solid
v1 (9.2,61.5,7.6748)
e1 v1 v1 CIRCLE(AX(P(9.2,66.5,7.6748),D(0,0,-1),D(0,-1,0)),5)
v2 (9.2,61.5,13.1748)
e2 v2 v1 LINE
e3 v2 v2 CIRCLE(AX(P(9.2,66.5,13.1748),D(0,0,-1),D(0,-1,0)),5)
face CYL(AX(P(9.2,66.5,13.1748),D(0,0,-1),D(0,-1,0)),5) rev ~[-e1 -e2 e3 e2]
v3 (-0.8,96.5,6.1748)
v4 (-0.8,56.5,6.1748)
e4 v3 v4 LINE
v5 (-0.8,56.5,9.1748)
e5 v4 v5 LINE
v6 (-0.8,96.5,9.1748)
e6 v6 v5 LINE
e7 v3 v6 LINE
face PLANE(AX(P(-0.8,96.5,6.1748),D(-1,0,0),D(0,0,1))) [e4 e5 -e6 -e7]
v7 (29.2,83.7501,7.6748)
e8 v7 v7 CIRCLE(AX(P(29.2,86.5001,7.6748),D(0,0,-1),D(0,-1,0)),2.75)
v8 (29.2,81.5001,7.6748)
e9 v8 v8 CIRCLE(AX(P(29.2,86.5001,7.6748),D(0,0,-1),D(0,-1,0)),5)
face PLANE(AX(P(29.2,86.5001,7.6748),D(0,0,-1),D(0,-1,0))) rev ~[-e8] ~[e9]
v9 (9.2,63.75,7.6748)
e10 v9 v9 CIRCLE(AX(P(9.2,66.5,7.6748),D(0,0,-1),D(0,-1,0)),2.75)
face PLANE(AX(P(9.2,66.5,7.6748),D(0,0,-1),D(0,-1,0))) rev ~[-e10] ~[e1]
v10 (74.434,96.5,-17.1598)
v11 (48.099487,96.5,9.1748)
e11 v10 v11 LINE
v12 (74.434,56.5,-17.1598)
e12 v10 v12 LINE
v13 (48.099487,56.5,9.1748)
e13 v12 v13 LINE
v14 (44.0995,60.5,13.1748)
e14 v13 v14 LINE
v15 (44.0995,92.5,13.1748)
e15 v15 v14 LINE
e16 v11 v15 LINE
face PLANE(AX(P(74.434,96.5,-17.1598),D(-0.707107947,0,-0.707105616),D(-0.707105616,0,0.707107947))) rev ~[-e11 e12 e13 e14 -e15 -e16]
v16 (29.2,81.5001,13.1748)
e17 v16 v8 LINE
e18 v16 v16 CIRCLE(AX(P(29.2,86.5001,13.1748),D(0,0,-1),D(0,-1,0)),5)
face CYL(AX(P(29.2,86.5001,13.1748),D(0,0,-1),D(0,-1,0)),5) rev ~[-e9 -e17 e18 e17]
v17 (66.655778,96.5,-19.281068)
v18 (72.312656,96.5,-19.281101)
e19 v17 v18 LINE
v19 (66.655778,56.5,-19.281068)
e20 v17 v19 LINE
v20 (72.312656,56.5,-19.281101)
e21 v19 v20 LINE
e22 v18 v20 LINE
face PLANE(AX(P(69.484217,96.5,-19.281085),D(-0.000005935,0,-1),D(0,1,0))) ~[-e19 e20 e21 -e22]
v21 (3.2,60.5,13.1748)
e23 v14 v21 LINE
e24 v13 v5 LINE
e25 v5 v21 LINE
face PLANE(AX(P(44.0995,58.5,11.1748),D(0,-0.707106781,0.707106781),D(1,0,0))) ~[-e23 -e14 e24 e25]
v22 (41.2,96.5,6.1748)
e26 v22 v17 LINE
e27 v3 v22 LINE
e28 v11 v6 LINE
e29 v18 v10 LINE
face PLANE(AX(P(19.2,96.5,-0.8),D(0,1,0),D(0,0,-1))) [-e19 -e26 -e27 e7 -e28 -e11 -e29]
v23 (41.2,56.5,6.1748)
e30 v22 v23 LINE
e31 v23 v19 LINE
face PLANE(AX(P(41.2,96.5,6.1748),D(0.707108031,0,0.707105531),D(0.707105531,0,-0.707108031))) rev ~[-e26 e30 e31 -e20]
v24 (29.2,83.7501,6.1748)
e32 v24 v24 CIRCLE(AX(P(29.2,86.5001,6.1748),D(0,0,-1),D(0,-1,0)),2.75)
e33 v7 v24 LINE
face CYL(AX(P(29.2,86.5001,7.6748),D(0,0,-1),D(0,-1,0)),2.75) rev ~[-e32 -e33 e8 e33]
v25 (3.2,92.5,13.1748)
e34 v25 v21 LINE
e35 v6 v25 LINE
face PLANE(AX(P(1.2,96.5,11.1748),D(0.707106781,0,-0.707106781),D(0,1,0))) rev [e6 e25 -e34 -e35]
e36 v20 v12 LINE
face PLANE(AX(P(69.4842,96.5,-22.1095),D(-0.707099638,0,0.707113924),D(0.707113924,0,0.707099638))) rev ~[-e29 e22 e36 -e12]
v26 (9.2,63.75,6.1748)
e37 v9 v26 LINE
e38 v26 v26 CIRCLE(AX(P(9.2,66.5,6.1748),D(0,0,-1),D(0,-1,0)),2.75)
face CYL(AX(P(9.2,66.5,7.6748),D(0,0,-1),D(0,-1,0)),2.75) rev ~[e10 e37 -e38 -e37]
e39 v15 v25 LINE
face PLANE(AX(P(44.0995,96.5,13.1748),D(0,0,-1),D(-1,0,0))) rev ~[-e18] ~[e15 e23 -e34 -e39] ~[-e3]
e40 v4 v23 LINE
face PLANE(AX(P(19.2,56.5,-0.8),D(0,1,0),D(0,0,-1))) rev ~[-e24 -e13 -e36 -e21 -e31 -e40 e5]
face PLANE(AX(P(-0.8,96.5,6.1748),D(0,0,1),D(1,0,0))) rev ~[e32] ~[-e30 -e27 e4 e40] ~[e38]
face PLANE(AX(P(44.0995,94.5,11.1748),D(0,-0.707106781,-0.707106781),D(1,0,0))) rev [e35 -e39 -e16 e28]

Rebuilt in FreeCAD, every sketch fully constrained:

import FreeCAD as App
import Part
import Sketcher

V = App.Vector
Q = App.Units.Quantity


def edges_at(feature, points):
    """Names of the edges that pass closest to the given points."""
    edges = feature.Shape.Edges
    near = lambda p: min(range(len(edges)), key=lambda i: edges[i].distToShape(Part.Vertex(*p))[0])
    return sorted({f"Edge{near(p) + 1}" for p in points})

doc = App.newDocument("Part")
body = doc.addObject("PartDesign::Body", "Body")

# Sketch on XZ plane
sketch1 = body.newObject("Sketcher::SketchObject", "Sketch")
sketch1.AttachmentSupport = (doc.getObject("XZ_Plane"), [""])
sketch1.MapMode = "FlatFace"
sketch1.AttachmentOffset = App.Placement(V(0, 0, -96.5), App.Rotation())
sketch1.addGeometry(Part.LineSegment(V(41, 6, 0), V(-1, 6, 0)), False)
sketch1.addGeometry(Part.LineSegment(V(-1, 6, 0), V(-1, 13, 0)), False)
sketch1.addGeometry(Part.LineSegment(V(-1, 13, 0), V(44, 13, 0)), False)
sketch1.addGeometry(Part.LineSegment(V(44, 13, 0), V(74, -17, 0)), False)
sketch1.addGeometry(Part.LineSegment(V(74, -17, 0), V(69, -22, 0)), False)
sketch1.addGeometry(Part.LineSegment(V(69, -22, 0), V(41, 6, 0)), False)
sketch1.addConstraint(Sketcher.Constraint("Coincident", 0, 2, 1, 1))
sketch1.addConstraint(Sketcher.Constraint("Coincident", 1, 2, 2, 1))
sketch1.addConstraint(Sketcher.Constraint("Coincident", 2, 2, 3, 1))
sketch1.addConstraint(Sketcher.Constraint("Coincident", 3, 2, 4, 1))
sketch1.addConstraint(Sketcher.Constraint("Coincident", 4, 2, 5, 1))
sketch1.addConstraint(Sketcher.Constraint("Coincident", 5, 2, 0, 1))
sketch1.addConstraint(Sketcher.Constraint("Horizontal", 0))
sketch1.addConstraint(Sketcher.Constraint("Vertical", 1))
sketch1.addConstraint(Sketcher.Constraint("Horizontal", 2))
sketch1.addConstraint(Sketcher.Constraint("Perpendicular", 3, 4))
sketch1.addConstraint(Sketcher.Constraint("Perpendicular", 4, 5))
sketch1.addConstraint(Sketcher.Constraint("DistanceX", 0, 2, 0, 1, 42.0))
sketch1.addConstraint(Sketcher.Constraint("DistanceY", 1, 1, 1, 2, 7.0))
sketch1.addConstraint(Sketcher.Constraint("Angle", 4, Q("-135.0006 deg")))
sketch1.addConstraint(Sketcher.Constraint("Distance", 4, 7.0))
sketch1.addConstraint(Sketcher.Constraint("Distance", 5, 40.0))
sketch1.addConstraint(Sketcher.Constraint("DistanceX", 0, 2, -1, 1, 0.8))
sketch1.addConstraint(Sketcher.Constraint("DistanceY", -1, 1, 0, 2, 6.1748))
pad1 = body.newObject("PartDesign::Pad", "Pad")
pad1.Profile = sketch1
pad1.Length = 40
doc.recompute()

chamfer = body.newObject("PartDesign::Chamfer", "Chamfer")
chamfer.Base = (pad1, edges_at(pad1, [(69.484, 76.5, -22.11)]))
chamfer.Size = 4
doc.recompute()

chamfer2 = body.newObject("PartDesign::Chamfer", "Chamfer001")
chamfer2.Base = (chamfer, edges_at(chamfer, [(-0.8, 76.5, 13.175), (21.65, 96.5, 13.175), (21.65, 56.5, 13.175)]))
chamfer2.Size = 4

# Sketch on XY plane
sketch2 = body.newObject("Sketcher::SketchObject", "Sketch001")
sketch2.AttachmentSupport = (doc.getObject("XY_Plane"), [""])
sketch2.MapMode = "FlatFace"
sketch2.AttachmentOffset = App.Placement(V(0, 0, 13.1748), App.Rotation())
sketch2.addGeometry(Part.Circle(V(29.2, 86.5, 0), V(0, 0, 1), 2.8), False)
sketch2.addGeometry(Part.Circle(V(9.2, 66.5, 0), V(0, 0, 1), 2.8), False)
sketch2.addConstraint(Sketcher.Constraint("Equal", 0, 1))
sketch2.addConstraint(Sketcher.Constraint("Diameter", 0, 5.5))
sketch2.addConstraint(Sketcher.Constraint("DistanceX", 1, 3, 0, 3, 20.0))
sketch2.addConstraint(Sketcher.Constraint("DistanceY", 1, 3, 0, 3, 20.0))
sketch2.addConstraint(Sketcher.Constraint("DistanceX", -1, 1, 0, 3, 29.2))
sketch2.addConstraint(Sketcher.Constraint("DistanceY", -1, 1, 0, 3, 86.5))
doc.recompute()
hole = body.newObject("PartDesign::Hole", "Hole")
hole.Profile = sketch2
hole.ThreadType = "None"
hole.Diameter = 5.5
hole.DepthType = "ThroughAll"
hole.HoleCutType = "Counterbore"
hole.HoleCutDiameter = 10
hole.HoleCutDepth = 5.5

doc.recompute()
